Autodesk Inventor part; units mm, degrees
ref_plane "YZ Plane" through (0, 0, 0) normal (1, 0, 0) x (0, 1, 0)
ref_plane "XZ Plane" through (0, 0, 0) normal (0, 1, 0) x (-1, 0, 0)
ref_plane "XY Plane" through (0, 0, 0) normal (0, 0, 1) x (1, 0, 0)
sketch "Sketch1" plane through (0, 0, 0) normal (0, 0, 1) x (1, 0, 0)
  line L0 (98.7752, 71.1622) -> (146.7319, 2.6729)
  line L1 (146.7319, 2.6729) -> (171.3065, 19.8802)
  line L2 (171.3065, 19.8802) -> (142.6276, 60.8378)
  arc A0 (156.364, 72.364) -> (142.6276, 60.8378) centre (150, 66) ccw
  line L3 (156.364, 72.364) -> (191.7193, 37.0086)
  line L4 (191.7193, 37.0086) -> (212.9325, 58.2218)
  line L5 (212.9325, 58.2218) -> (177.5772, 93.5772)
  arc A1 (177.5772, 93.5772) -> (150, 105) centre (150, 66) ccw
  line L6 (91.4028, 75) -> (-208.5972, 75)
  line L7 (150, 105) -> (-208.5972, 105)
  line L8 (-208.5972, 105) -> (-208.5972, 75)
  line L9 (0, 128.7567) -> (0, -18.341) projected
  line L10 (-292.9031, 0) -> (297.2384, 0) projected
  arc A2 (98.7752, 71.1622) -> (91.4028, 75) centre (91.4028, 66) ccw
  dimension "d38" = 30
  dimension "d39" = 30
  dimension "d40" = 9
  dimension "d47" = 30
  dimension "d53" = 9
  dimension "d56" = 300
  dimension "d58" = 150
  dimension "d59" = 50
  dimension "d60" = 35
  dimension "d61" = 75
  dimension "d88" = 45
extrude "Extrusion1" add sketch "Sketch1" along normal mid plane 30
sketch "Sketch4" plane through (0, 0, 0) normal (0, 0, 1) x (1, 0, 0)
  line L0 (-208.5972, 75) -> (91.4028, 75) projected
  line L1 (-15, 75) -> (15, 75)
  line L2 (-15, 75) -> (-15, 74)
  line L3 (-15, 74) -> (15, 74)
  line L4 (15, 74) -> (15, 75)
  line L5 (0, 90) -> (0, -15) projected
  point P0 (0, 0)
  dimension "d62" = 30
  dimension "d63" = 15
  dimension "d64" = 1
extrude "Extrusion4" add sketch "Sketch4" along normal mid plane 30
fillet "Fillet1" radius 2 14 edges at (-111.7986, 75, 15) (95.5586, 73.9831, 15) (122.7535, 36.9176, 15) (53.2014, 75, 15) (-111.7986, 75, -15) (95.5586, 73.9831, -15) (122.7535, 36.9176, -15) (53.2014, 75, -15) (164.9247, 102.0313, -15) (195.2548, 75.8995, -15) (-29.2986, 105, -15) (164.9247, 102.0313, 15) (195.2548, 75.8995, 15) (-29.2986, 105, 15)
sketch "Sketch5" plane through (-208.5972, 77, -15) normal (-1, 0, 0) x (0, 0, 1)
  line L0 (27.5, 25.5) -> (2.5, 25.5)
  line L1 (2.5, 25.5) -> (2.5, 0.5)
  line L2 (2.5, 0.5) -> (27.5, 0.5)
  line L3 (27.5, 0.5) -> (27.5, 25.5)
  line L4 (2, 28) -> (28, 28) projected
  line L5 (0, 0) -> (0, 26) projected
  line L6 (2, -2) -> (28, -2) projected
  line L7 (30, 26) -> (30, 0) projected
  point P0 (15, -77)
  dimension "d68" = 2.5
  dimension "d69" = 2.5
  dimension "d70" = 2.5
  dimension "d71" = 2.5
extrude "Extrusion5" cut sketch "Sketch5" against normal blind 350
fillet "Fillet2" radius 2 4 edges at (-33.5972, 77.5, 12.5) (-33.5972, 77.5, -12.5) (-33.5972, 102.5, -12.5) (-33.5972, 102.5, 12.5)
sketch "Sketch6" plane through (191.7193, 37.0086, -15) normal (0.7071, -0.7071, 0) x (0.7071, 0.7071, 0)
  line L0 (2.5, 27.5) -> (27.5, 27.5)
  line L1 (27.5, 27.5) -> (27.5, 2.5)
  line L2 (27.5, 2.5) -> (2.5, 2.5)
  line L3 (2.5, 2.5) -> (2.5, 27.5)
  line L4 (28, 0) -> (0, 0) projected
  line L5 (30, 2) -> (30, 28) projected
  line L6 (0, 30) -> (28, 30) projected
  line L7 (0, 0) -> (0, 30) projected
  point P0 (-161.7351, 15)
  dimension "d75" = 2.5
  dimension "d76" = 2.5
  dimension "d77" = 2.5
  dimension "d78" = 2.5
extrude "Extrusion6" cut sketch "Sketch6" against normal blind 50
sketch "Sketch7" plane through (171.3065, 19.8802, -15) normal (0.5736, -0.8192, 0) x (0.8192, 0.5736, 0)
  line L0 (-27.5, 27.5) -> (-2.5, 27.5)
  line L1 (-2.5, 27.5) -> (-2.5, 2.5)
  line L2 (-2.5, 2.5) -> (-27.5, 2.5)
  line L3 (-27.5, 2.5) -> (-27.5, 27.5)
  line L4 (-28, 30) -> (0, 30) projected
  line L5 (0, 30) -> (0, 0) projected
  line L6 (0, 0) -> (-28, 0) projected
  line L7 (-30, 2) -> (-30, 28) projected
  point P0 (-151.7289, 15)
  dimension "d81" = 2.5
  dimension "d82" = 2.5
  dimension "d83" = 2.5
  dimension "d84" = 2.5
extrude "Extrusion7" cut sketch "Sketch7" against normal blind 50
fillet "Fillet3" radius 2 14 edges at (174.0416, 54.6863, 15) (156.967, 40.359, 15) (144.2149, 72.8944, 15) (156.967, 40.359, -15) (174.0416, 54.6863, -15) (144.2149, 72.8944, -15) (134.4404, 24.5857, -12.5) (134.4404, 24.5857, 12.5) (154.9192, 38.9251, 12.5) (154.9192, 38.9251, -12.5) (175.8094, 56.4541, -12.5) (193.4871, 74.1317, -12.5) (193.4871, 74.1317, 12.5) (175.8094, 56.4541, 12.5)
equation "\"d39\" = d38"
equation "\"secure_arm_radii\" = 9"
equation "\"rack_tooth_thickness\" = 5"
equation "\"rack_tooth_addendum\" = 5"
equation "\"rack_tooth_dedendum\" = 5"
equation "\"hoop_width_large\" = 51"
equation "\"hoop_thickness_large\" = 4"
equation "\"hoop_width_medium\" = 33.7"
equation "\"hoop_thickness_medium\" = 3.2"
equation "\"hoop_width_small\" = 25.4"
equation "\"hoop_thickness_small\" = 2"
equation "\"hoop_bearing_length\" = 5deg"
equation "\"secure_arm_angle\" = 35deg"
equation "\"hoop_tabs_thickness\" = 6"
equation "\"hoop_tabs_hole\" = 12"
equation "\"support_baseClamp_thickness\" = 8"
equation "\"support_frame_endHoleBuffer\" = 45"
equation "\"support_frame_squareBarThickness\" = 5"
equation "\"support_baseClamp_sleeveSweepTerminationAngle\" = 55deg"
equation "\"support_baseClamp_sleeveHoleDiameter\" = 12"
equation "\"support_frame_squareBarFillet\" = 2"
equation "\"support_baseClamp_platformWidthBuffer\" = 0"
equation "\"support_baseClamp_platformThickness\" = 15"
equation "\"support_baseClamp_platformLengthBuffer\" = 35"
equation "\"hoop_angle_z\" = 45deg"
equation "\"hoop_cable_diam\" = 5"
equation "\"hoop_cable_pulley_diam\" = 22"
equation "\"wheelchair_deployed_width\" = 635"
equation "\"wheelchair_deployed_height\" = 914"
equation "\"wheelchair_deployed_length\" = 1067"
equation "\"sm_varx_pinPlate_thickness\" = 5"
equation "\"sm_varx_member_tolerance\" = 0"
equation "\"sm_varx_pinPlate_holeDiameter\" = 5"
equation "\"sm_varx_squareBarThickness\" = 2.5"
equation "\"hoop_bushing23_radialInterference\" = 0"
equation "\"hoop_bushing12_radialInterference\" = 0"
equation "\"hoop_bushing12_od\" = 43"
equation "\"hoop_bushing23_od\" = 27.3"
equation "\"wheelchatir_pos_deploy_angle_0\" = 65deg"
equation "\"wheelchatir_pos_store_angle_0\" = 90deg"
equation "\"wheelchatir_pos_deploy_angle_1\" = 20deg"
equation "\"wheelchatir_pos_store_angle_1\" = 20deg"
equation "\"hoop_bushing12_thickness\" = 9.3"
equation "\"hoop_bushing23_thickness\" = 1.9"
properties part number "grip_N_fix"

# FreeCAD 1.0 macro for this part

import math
import FreeCAD as App
import Part
import Sketcher
Q = App.Units.Quantity


def edges_at(feature, points):
    """Names of the edges that pass closest to the given points."""
    edges = feature.Shape.Edges
    near = lambda p: min(range(len(edges)), key=lambda i: edges[i].distToShape(Part.Vertex(*p))[0])
    return sorted({f"Edge{near(p) + 1}" for p in points})

doc = App.newDocument("Part")
params = doc.addObject("Spreadsheet::Sheet", "Params")
for row, (alias, value) in enumerate([
    ("sketch1_radius", "9 mm"),
    ("sketch1_width", "300 mm"),
    ("sketch1_height", "30 mm"),
    ("sketch1_length", "50 mm"),
    ("pad1_length", "30 mm"),
    ("sketch2_width", "30 mm"),
    ("sketch2_height", "1 mm"),
    ("pad2_length", "30 mm"),
    ("fillet_radius", "2 mm"),
    ("sketch3_width", "25 mm"),
    ("pocket1_length", "350 mm"),
    ("fillet2_radius", "2 mm"),
    ("sketch4_width", "25 mm"),
    ("pocket2_length", "50 mm"),
    ("sketch5_width", "25 mm"),
    ("pocket3_length", "50 mm"),
    ("fillet3_radius", "2 mm"),
], start=1):
    params.set(f"A{row}", alias)
    params.set(f"B{row}", "=" + value)
    params.setAlias(f"B{row}", alias)

body = doc.addObject("PartDesign::Body", "Body")

sketch1 = doc.addObject("Sketcher::SketchObject", "Sketch")
body.addObject(sketch1)
sketch1.AttachmentSupport = (doc.XY_Plane, [""])
sketch1.MapMode = "FlatFace"
sketch1.addGeometry([
    Part.ArcOfCircle(Part.Circle(App.Vector(91.4028, 66, 0), App.Vector(0, 0, 1), 9.000033), math.radians(34.999948), math.radians(90)),
    Part.LineSegment(App.Vector(98.7752, 71.1622, 0), App.Vector(146.7319, 2.6729, 0)),
    Part.LineSegment(App.Vector(146.7319, 2.6729, 0), App.Vector(171.3065, 19.8802, 0)),
    Part.LineSegment(App.Vector(171.3065, 19.8802, 0), App.Vector(142.6276, 60.8378, 0)),
    Part.ArcOfCircle(Part.Circle(App.Vector(150, 66, 0), App.Vector(0, 0, 1), 9.000055), math.radians(45), math.radians(214.999948)),
    Part.LineSegment(App.Vector(156.364, 72.364, 0), App.Vector(191.7193, 37.0086, 0)),
    Part.LineSegment(App.Vector(191.7193, 37.0086, 0), App.Vector(212.9325, 58.2218, 0)),
    Part.LineSegment(App.Vector(212.9325, 58.2218, 0), App.Vector(177.5772, 93.5772, 0)),
    Part.ArcOfCircle(Part.Circle(App.Vector(150, 66, 0), App.Vector(0, 0, 1), 39.00005), math.radians(45), math.radians(90)),
    Part.LineSegment(App.Vector(150, 105, 0), App.Vector(-208.5972, 105, 0)),
    Part.LineSegment(App.Vector(-208.5972, 105, 0), App.Vector(-208.5972, 75, 0)),
    Part.LineSegment(App.Vector(-208.5972, 75, 0), App.Vector(91.4028, 75, 0)),
], False)
sketch1.addConstraint([
    Sketcher.Constraint("Tangent", 0, 1, 1, 1),
    Sketcher.Constraint("Coincident", 1, 2, 2, 1),
    Sketcher.Constraint("Coincident", 2, 2, 3, 1),
    Sketcher.Constraint("Tangent", 3, 2, 4, 2),
    Sketcher.Constraint("Tangent", 4, 1, 5, 1),
    Sketcher.Constraint("Coincident", 5, 2, 6, 1),
    Sketcher.Constraint("Coincident", 6, 2, 7, 1),
    Sketcher.Constraint("Tangent", 7, 2, 8, 1),
    Sketcher.Constraint("Tangent", 8, 2, 9, 1),
    Sketcher.Constraint("Coincident", 9, 2, 10, 1),
    Sketcher.Constraint("Coincident", 10, 2, 11, 1),
    Sketcher.Constraint("Tangent", 11, 2, 0, 2),
    Sketcher.Constraint("Horizontal", 9),
    Sketcher.Constraint("Vertical", 10),
    Sketcher.Constraint("Horizontal", 11),
    Sketcher.Constraint("Coincident", 8, 3, 4, 3),
    Sketcher.Constraint("Equal", 0, 4),
    Sketcher.Constraint("Perpendicular", 1, 2),
    Sketcher.Constraint("Perpendicular", 2, 3),
    Sketcher.Constraint("Perpendicular", 5, 6),
    Sketcher.Constraint("Perpendicular", 6, 7),
    Sketcher.Constraint("Horizontal", 0, 3, 4, 3),
    Sketcher.Constraint("Equal", 3, 5),
    Sketcher.Constraint("Equal", 2, 6),
    Sketcher.Constraint("Radius", 0, Q("9 mm")),
    Sketcher.Constraint("DistanceX", 11, 1, 11, 2, Q("300 mm")),
    Sketcher.Constraint("DistanceY", 10, 2, 10, 1, Q("30 mm")),
    Sketcher.Constraint("Angle", 2, Q("35 deg")),
    Sketcher.Constraint("Angle", 5, Q("-45 deg")),
    Sketcher.Constraint("Distance", 3, Q("50 mm")),
    Sketcher.Constraint("DistanceX", -1, 1, 4, 3, Q("150 mm")),
    Sketcher.Constraint("DistanceY", -1, 1, 10, 2, Q("75 mm")),
])
sketch1.setExpression("Constraints[24]", "Params.sketch1_radius")
sketch1.setExpression("Constraints[25]", "Params.sketch1_width")
sketch1.setExpression("Constraints[26]", "Params.sketch1_height")
sketch1.setExpression("Constraints[29]", "Params.sketch1_length")
pad1 = doc.addObject("PartDesign::Pad", "Pad")
body.addObject(pad1)
pad1.Profile = sketch1
pad1.setExpression("Length", "Params.pad1_length")
pad1.Midplane = True

sketch2 = doc.addObject("Sketcher::SketchObject", "Sketch001")
body.addObject(sketch2)
sketch2.AttachmentSupport = (doc.XY_Plane, [""])
sketch2.MapMode = "FlatFace"
sketch2.addGeometry([
    Part.LineSegment(App.Vector(-15, 75, 0), App.Vector(-15, 74, 0)),
    Part.LineSegment(App.Vector(-15, 74, 0), App.Vector(15, 74, 0)),
    Part.LineSegment(App.Vector(15, 74, 0), App.Vector(15, 75, 0)),
    Part.LineSegment(App.Vector(15, 75, 0), App.Vector(-15, 75, 0)),
], False)
sketch2.addConstraint([
    Sketcher.Constraint("Coincident", 0, 2, 1, 1),
    Sketcher.Constraint("Coincident", 1, 2, 2, 1),
    Sketcher.Constraint("Coincident", 2, 2, 3, 1),
    Sketcher.Constraint("Coincident", 3, 2, 0, 1),
    Sketcher.Constraint("Vertical", 0),
    Sketcher.Constraint("Horizontal", 1),
    Sketcher.Constraint("Vertical", 2),
    Sketcher.Constraint("Horizontal", 3),
    Sketcher.Constraint("DistanceX", 1, 1, 1, 2, Q("30 mm")),
    Sketcher.Constraint("DistanceY", 0, 2, 0, 1, Q("1 mm")),
    Sketcher.Constraint("DistanceX", 0, 2, -1, 1, Q("15 mm")),
    Sketcher.Constraint("DistanceY", -1, 1, 0, 2, Q("74 mm")),
])
sketch2.setExpression("Constraints[8]", "Params.sketch2_width")
sketch2.setExpression("Constraints[9]", "Params.sketch2_height")
pad2 = doc.addObject("PartDesign::Pad", "Pad001")
body.addObject(pad2)
pad2.Profile = sketch2
pad2.setExpression("Length", "Params.pad2_length")
pad2.Midplane = True
doc.recompute()

fillet = doc.addObject("PartDesign::Fillet", "Fillet")
body.addObject(fillet)
fillet.Base = (pad2, edges_at(pad2, [
    (-111.799, 75, 15),
    (95.559, 73.983, 15),
    (122.754, 36.918, 15),
    (53.201, 75, 15),
    (-111.799, 75, -15),
    (95.559, 73.983, -15),
    (122.754, 36.918, -15),
    (53.201, 75, -15),
    (164.925, 102.031, -15),
    (195.255, 75.9, -15),
    (-29.299, 105, -15),
    (164.925, 102.031, 15),
    (195.255, 75.9, 15),
    (-29.299, 105, 15),
]))
fillet.setExpression("Radius", "Params.fillet_radius")

sketch3 = doc.addObject("Sketcher::SketchObject", "Sketch002")
body.addObject(sketch3)
sketch3.AttachmentSupport = (doc.YZ_Plane, [""])
sketch3.MapMode = "FlatFace"
sketch3.AttachmentOffset = App.Placement(App.Vector(0, 0, -208.5972), App.Rotation())
sketch3.addGeometry([
    Part.LineSegment(App.Vector(77.5, 12.5, 0), App.Vector(102.5, 12.5, 0)),
    Part.LineSegment(App.Vector(102.5, 12.5, 0), App.Vector(102.5, -12.5, 0)),
    Part.LineSegment(App.Vector(102.5, -12.5, 0), App.Vector(77.5, -12.5, 0)),
    Part.LineSegment(App.Vector(77.5, -12.5, 0), App.Vector(77.5, 12.5, 0)),
], False)
sketch3.addConstraint([
    Sketcher.Constraint("Coincident", 0, 2, 1, 1),
    Sketcher.Constraint("Coincident", 1, 2, 2, 1),
    Sketcher.Constraint("Coincident", 2, 2, 3, 1),
    Sketcher.Constraint("Coincident", 3, 2, 0, 1),
    Sketcher.Constraint("Horizontal", 0),
    Sketcher.Constraint("Vertical", 1),
    Sketcher.Constraint("Horizontal", 2),
    Sketcher.Constraint("Vertical", 3),
    Sketcher.Constraint("Equal", 2, 1),
    Sketcher.Constraint("DistanceX", 0, 1, 0, 2, Q("25 mm")),
    Sketcher.Constraint("DistanceX", -1, 1, 0, 2, Q("102.5 mm")),
    Sketcher.Constraint("DistanceY", -1, 1, 0, 2, Q("12.5 mm")),
])
sketch3.setExpression("Constraints[9]", "Params.sketch3_width")
pocket1 = doc.addObject("PartDesign::Pocket", "Pocket")
body.addObject(pocket1)
pocket1.Profile = sketch3
pocket1.setExpression("Length", "Params.pocket1_length")
pocket1.Reversed = True
doc.recompute()

fillet2 = doc.addObject("PartDesign::Fillet", "Fillet001")
body.addObject(fillet2)
fillet2.Base = (pocket1, edges_at(pocket1, [
    (-33.597, 77.5, 12.5),
    (-33.597, 77.5, -12.5),
    (-33.597, 102.5, -12.5),
    (-33.597, 102.5, 12.5),
]))
fillet2.setExpression("Radius", "Params.fillet2_radius")

sketch4 = doc.addObject("Sketcher::SketchObject", "Sketch003")
body.addObject(sketch4)
sketch4.Placement = App.Placement(App.Vector(191.7193, 37.0086, -15), App.Rotation(App.Vector(0.707106781, 0.707106781, 0), App.Vector(0, 0, 0.999999999), App.Vector(0.707106781, -0.707106781, 0), "ZXY"))
sketch4.addGeometry([
    Part.LineSegment(App.Vector(27.5, 27.5, 0), App.Vector(2.5, 27.5, 0)),
    Part.LineSegment(App.Vector(2.5, 27.5, 0), App.Vector(2.5, 2.5, 0)),
    Part.LineSegment(App.Vector(2.5, 2.5, 0), App.Vector(27.5, 2.5, 0)),
    Part.LineSegment(App.Vector(27.5, 2.5, 0), App.Vector(27.5, 27.5, 0)),
], False)
sketch4.addConstraint([
    Sketcher.Constraint("Coincident", 0, 2, 1, 1),
    Sketcher.Constraint("Coincident", 1, 2, 2, 1),
    Sketcher.Constraint("Coincident", 2, 2, 3, 1),
    Sketcher.Constraint("Coincident", 3, 2, 0, 1),
    Sketcher.Constraint("Horizontal", 0),
    Sketcher.Constraint("Vertical", 1),
    Sketcher.Constraint("Horizontal", 2),
    Sketcher.Constraint("Vertical", 3),
    Sketcher.Constraint("Equal", 2, 1),
    Sketcher.Constraint("DistanceX", -1, 1, 0, 2, Q("2.5 mm")),
    Sketcher.Constraint("DistanceY", -1, 1, 1, 2, Q("2.5 mm")),
    Sketcher.Constraint("DistanceX", 0, 2, 0, 1, Q("25 mm")),
])
sketch4.setExpression("Constraints[11]", "Params.sketch4_width")
pocket2 = doc.addObject("PartDesign::Pocket", "Pocket001")
body.addObject(pocket2)
pocket2.Profile = sketch4
pocket2.setExpression("Length", "Params.pocket2_length")

sketch5 = doc.addObject("Sketcher::SketchObject", "Sketch004")
body.addObject(sketch5)
sketch5.Placement = App.Placement(App.Vector(171.3065, 19.8802, -15), App.Rotation(App.Vector(0.819152044, 0.573576436, 0), App.Vector(0, 0, 0.999999999), App.Vector(0.573576436, -0.819152044, 0), "ZXY"))
sketch5.addGeometry([
    Part.LineSegment(App.Vector(-2.5, 27.5, 0), App.Vector(-27.5, 27.5, 0)),
    Part.LineSegment(App.Vector(-27.5, 27.5, 0), App.Vector(-27.5, 2.5, 0)),
    Part.LineSegment(App.Vector(-27.5, 2.5, 0), App.Vector(-2.5, 2.5, 0)),
    Part.LineSegment(App.Vector(-2.5, 2.5, 0), App.Vector(-2.5, 27.5, 0)),
], False)
sketch5.addConstraint([
    Sketcher.Constraint("Coincident", 0, 2, 1, 1),
    Sketcher.Constraint("Coincident", 1, 2, 2, 1),
    Sketcher.Constraint("Coincident", 2, 2, 3, 1),
    Sketcher.Constraint("Coincident", 3, 2, 0, 1),
    Sketcher.Constraint("Horizontal", 0),
    Sketcher.Constraint("Vertical", 1),
    Sketcher.Constraint("Horizontal", 2),
    Sketcher.Constraint("Vertical", 3),
    Sketcher.Constraint("Equal", 2, 1),
    Sketcher.Constraint("DistanceY", -1, 1, 1, 2, Q("2.5 mm")),
    Sketcher.Constraint("DistanceX", 2, 2, -1, 1, Q("2.5 mm")),
    Sketcher.Constraint("DistanceX", 0, 2, 0, 1, Q("25 mm")),
])
sketch5.setExpression("Constraints[11]", "Params.sketch5_width")
pocket3 = doc.addObject("PartDesign::Pocket", "Pocket002")
body.addObject(pocket3)
pocket3.Profile = sketch5
pocket3.setExpression("Length", "Params.pocket3_length")
doc.recompute()

fillet3 = doc.addObject("PartDesign::Fillet", "Fillet002")
body.addObject(fillet3)
fillet3.Base = (pocket3, edges_at(pocket3, [
    (174.042, 54.686, 15),
    (156.967, 40.359, 15),
    (144.215, 72.894, 15),
    (156.967, 40.359, -15),
    (174.042, 54.686, -15),
    (144.215, 72.894, -15),
    (134.44, 24.586, -12.5),
    (134.44, 24.586, 12.5),
    (154.919, 38.925, 12.5),
    (154.919, 38.925, -12.5),
    (175.809, 56.454, -12.5),
    (193.487, 74.132, -12.5),
    (193.487, 74.132, 12.5),
    (175.809, 56.454, 12.5),
]))
fillet3.setExpression("Radius", "Params.fillet3_radius")

doc.recompute()
